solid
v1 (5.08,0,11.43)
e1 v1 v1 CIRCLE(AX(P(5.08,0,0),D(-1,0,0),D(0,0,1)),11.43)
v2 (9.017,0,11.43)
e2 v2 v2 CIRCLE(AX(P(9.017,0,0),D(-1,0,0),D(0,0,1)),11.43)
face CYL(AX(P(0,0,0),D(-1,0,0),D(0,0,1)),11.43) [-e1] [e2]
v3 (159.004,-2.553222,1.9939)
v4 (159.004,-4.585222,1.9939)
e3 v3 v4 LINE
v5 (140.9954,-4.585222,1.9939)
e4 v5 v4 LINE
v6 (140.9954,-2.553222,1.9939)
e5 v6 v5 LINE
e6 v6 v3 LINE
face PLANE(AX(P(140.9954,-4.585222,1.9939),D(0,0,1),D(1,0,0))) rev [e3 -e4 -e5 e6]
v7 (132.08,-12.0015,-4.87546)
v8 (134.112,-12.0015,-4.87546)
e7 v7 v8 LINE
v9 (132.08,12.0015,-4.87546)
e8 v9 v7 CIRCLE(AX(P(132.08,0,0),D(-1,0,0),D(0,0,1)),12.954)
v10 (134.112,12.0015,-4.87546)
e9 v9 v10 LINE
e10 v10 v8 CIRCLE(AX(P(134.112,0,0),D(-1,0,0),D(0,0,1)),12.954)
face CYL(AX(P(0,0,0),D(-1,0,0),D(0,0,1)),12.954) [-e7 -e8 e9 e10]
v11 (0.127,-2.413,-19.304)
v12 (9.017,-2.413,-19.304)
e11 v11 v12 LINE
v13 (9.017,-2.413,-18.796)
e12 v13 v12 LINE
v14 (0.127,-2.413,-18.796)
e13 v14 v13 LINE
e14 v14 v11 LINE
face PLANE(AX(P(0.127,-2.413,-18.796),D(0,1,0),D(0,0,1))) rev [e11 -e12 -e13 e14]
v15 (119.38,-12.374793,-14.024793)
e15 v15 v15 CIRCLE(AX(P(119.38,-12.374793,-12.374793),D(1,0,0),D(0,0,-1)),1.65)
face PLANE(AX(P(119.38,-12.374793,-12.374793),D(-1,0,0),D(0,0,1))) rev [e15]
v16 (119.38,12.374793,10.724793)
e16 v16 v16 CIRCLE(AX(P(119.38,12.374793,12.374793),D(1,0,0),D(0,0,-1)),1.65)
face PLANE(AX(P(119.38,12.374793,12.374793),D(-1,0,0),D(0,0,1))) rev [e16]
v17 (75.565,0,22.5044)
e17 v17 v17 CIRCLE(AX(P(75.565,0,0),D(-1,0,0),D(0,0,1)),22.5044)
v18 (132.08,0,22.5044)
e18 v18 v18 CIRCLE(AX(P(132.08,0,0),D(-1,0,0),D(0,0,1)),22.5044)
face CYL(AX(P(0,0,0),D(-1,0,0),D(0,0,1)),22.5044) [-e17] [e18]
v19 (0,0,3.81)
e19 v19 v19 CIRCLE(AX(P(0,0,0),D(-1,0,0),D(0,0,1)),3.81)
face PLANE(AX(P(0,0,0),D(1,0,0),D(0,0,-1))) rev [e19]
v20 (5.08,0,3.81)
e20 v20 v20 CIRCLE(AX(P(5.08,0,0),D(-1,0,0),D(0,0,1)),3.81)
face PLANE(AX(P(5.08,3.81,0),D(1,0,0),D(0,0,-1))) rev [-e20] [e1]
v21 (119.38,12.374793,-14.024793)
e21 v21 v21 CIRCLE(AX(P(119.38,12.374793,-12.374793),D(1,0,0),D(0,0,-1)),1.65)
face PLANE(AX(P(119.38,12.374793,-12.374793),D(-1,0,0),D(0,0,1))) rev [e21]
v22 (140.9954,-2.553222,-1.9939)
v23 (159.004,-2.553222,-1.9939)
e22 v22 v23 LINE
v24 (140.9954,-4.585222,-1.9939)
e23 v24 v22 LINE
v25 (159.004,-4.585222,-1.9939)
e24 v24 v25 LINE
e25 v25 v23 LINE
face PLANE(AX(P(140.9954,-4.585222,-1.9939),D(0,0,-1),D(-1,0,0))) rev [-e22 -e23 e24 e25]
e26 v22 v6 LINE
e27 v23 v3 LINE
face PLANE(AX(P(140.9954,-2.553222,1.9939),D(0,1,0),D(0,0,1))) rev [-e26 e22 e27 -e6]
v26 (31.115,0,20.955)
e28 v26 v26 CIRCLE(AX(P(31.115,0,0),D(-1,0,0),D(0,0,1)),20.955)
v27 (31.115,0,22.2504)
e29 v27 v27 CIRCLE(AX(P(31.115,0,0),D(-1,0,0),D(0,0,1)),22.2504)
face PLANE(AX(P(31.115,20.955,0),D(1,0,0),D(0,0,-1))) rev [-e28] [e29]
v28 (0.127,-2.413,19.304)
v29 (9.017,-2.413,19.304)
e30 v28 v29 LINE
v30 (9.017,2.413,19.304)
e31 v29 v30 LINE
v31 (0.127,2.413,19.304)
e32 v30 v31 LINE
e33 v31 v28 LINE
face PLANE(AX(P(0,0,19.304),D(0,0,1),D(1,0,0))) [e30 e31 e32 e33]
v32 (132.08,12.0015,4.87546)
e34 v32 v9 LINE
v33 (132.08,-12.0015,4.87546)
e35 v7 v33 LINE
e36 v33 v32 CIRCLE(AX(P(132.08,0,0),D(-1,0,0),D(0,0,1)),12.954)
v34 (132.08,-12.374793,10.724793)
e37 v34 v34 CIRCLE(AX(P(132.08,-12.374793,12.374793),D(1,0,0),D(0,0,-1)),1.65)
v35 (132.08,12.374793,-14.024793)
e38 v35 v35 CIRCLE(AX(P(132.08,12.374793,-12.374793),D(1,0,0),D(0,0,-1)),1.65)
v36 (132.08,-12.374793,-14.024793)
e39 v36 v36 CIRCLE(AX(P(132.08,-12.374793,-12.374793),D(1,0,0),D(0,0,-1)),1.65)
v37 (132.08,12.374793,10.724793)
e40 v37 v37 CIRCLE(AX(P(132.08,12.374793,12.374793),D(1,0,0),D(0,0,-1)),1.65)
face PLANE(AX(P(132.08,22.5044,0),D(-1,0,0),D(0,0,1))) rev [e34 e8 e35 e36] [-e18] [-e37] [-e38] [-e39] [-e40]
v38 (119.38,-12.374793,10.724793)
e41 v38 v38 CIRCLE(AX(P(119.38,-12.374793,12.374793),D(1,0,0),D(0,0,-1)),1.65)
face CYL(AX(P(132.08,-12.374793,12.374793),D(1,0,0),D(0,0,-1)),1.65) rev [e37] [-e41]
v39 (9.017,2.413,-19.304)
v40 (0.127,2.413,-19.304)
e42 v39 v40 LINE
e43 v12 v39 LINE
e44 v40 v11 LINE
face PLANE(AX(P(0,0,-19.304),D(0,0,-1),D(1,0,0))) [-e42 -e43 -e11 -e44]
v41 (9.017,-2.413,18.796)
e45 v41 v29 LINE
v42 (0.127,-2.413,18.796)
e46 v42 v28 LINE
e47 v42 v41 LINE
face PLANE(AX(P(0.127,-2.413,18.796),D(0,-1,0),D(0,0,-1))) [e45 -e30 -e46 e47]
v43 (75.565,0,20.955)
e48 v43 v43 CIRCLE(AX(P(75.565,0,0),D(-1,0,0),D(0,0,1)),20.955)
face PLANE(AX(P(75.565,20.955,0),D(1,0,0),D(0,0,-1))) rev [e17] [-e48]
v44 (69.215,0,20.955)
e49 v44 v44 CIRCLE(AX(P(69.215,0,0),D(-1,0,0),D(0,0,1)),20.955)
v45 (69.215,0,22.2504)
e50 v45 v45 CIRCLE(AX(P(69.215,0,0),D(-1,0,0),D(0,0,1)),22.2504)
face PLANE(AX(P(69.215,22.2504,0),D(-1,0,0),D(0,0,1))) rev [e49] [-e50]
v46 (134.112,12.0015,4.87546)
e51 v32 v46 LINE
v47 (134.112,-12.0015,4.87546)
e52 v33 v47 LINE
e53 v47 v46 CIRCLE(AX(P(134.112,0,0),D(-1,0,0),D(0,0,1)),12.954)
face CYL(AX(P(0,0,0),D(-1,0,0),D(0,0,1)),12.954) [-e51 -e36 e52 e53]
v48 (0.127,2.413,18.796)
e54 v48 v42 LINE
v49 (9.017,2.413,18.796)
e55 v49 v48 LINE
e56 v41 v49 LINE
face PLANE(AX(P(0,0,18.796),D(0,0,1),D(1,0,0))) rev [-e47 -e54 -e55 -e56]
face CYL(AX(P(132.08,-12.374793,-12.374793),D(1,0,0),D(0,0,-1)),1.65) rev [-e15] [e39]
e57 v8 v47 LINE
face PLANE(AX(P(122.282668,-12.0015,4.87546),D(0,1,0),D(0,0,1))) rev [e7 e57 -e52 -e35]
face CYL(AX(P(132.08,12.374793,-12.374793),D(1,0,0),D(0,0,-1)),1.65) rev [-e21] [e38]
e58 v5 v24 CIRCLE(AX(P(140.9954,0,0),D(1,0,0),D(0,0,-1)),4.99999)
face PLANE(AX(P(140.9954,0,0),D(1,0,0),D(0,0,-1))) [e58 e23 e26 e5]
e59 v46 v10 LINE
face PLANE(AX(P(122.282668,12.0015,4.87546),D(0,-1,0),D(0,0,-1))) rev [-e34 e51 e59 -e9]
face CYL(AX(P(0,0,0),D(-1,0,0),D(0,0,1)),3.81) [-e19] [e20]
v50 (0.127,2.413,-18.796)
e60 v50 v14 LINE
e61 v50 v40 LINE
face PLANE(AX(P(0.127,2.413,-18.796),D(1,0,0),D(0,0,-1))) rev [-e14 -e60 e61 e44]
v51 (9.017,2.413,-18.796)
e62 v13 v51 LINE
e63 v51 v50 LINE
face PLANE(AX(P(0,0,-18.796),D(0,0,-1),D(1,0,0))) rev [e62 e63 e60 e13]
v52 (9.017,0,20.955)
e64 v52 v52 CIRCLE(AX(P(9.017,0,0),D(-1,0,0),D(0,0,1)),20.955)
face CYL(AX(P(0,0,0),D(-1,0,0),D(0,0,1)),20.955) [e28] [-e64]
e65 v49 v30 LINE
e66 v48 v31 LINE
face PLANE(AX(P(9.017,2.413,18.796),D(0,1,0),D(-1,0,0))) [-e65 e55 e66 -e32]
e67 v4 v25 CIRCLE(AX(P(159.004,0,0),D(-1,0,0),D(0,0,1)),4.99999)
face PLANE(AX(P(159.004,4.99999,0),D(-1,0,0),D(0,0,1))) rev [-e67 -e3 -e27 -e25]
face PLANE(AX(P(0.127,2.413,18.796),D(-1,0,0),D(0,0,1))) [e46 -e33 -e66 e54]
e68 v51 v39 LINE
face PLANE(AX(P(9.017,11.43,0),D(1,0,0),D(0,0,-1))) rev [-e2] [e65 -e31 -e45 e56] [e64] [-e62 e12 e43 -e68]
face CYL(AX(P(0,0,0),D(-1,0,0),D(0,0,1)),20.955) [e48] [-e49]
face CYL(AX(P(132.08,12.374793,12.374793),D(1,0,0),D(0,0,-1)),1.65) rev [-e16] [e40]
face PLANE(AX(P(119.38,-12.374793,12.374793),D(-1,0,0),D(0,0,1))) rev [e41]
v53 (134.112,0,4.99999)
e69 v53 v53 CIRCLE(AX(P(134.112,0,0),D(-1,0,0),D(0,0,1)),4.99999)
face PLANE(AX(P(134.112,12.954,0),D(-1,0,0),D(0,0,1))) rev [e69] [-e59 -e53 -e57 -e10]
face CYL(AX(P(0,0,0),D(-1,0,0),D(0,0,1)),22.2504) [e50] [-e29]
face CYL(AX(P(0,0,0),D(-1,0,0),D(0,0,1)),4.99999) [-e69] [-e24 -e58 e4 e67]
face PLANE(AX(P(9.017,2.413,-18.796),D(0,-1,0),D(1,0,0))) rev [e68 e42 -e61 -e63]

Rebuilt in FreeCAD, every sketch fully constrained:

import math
import FreeCAD as App
import Part
import Sketcher

V = App.Vector
Q = App.Units.Quantity

doc = App.newDocument("Part")
body = doc.addObject("PartDesign::Body", "Body")

# Sketch on XY plane
sketch1 = body.newObject("Sketcher::SketchObject", "Sketch")
sketch1.AttachmentSupport = (doc.getObject("XY_Plane"), [""])
sketch1.MapMode = "FlatFace"
sketch1.addGeometry(Part.LineSegment(V(0, 3.8, 0), V(0, 0, 0)), False)
sketch1.addGeometry(Part.LineSegment(V(0, 0, 0), V(159, 0, 0)), False)
sketch1.addGeometry(Part.LineSegment(V(159, 0, 0), V(159, 5, 0)), False)
sketch1.addGeometry(Part.LineSegment(V(159, 5, 0), V(134.1, 5, 0)), False)
sketch1.addGeometry(Part.LineSegment(V(134.1, 5, 0), V(134.1, 13, 0)), False)
sketch1.addGeometry(Part.LineSegment(V(134.1, 13, 0), V(132.1, 13, 0)), False)
sketch1.addGeometry(Part.LineSegment(V(132.1, 13, 0), V(132.1, 22.5, 0)), False)
sketch1.addGeometry(Part.LineSegment(V(132.1, 22.5, 0), V(75.6, 22.5, 0)), False)
sketch1.addGeometry(Part.LineSegment(V(75.6, 22.5, 0), V(75.6, 21, 0)), False)
sketch1.addGeometry(Part.LineSegment(V(75.6, 21, 0), V(69.2, 21, 0)), False)
sketch1.addGeometry(Part.LineSegment(V(69.2, 21, 0), V(69.2, 22.3, 0)), False)
sketch1.addGeometry(Part.LineSegment(V(69.2, 22.3, 0), V(31.1, 22.3, 0)), False)
sketch1.addGeometry(Part.LineSegment(V(31.1, 22.3, 0), V(31.1, 21, 0)), False)
sketch1.addGeometry(Part.LineSegment(V(31.1, 21, 0), V(9, 21, 0)), False)
sketch1.addGeometry(Part.LineSegment(V(9, 21, 0), V(9, 11.4, 0)), False)
sketch1.addGeometry(Part.LineSegment(V(9, 11.4, 0), V(5.1, 11.4, 0)), False)
sketch1.addGeometry(Part.LineSegment(V(5.1, 11.4, 0), V(5.1, 3.8, 0)), False)
sketch1.addGeometry(Part.LineSegment(V(5.1, 3.8, 0), V(0, 3.8, 0)), False)
sketch1.addConstraint(Sketcher.Constraint("Coincident", 0, 2, 1, 1))
sketch1.addConstraint(Sketcher.Constraint("Coincident", 1, 2, 2, 1))
sketch1.addConstraint(Sketcher.Constraint("Coincident", 2, 2, 3, 1))
sketch1.addConstraint(Sketcher.Constraint("Coincident", 3, 2, 4, 1))
sketch1.addConstraint(Sketcher.Constraint("Coincident", 4, 2, 5, 1))
sketch1.addConstraint(Sketcher.Constraint("Coincident", 5, 2, 6, 1))
sketch1.addConstraint(Sketcher.Constraint("Coincident", 6, 2, 7, 1))
sketch1.addConstraint(Sketcher.Constraint("Coincident", 7, 2, 8, 1))
sketch1.addConstraint(Sketcher.Constraint("Coincident", 8, 2, 9, 1))
sketch1.addConstraint(Sketcher.Constraint("Coincident", 9, 2, 10, 1))
sketch1.addConstraint(Sketcher.Constraint("Coincident", 10, 2, 11, 1))
sketch1.addConstraint(Sketcher.Constraint("Coincident", 11, 2, 12, 1))
sketch1.addConstraint(Sketcher.Constraint("Coincident", 12, 2, 13, 1))
sketch1.addConstraint(Sketcher.Constraint("Coincident", 13, 2, 14, 1))
sketch1.addConstraint(Sketcher.Constraint("Coincident", 14, 2, 15, 1))
sketch1.addConstraint(Sketcher.Constraint("Coincident", 15, 2, 16, 1))
sketch1.addConstraint(Sketcher.Constraint("Coincident", 16, 2, 17, 1))
sketch1.addConstraint(Sketcher.Constraint("Coincident", 17, 2, 0, 1))
sketch1.addConstraint(Sketcher.Constraint("Vertical", 0))
sketch1.addConstraint(Sketcher.Constraint("Horizontal", 1))
sketch1.addConstraint(Sketcher.Constraint("Vertical", 2))
sketch1.addConstraint(Sketcher.Constraint("Horizontal", 3))
sketch1.addConstraint(Sketcher.Constraint("Vertical", 4))
sketch1.addConstraint(Sketcher.Constraint("Horizontal", 5))
sketch1.addConstraint(Sketcher.Constraint("Vertical", 6))
sketch1.addConstraint(Sketcher.Constraint("Horizontal", 7))
sketch1.addConstraint(Sketcher.Constraint("Vertical", 8))
sketch1.addConstraint(Sketcher.Constraint("Horizontal", 9))
sketch1.addConstraint(Sketcher.Constraint("Vertical", 10))
sketch1.addConstraint(Sketcher.Constraint("Horizontal", 11))
sketch1.addConstraint(Sketcher.Constraint("Vertical", 12))
sketch1.addConstraint(Sketcher.Constraint("Horizontal", 13))
sketch1.addConstraint(Sketcher.Constraint("Vertical", 14))
sketch1.addConstraint(Sketcher.Constraint("Horizontal", 15))
sketch1.addConstraint(Sketcher.Constraint("Vertical", 16))
sketch1.addConstraint(Sketcher.Constraint("Horizontal", 17))
sketch1.addConstraint(Sketcher.Constraint("Coincident", 0, 2, -1, 1))
sketch1.addConstraint(Sketcher.Constraint("Horizontal", 9, 2, 12, 2))
sketch1.addConstraint(Sketcher.Constraint("DistanceX", 11, 2, 11, 1, Q("1.5 in")))
sketch1.addConstraint(Sketcher.Constraint("DistanceX", 17, 2, 17, 1, Q("0.2 in")))
sketch1.addConstraint(Sketcher.Constraint("DistanceY", 16, 2, 16, 1, Q("0.3 in")))
sketch1.addConstraint(Sketcher.Constraint("DistanceX", 1, 1, 1, 2, Q("6.26 in")))
sketch1.addConstraint(Sketcher.Constraint("DistanceX", 3, 2, 3, 1, Q("0.98 in")))
sketch1.addConstraint(Sketcher.Constraint("DistanceX", 5, 2, 5, 1, Q("0.08 in")))
sketch1.addConstraint(Sketcher.Constraint("DistanceX", 9, 2, 9, 1, Q("0.25 in")))
sketch1.addConstraint(Sketcher.Constraint("DistanceX", 13, 2, 13, 1, Q("0.87 in")))
sketch1.addConstraint(Sketcher.Constraint("DistanceY", 0, 2, 0, 1, Q("0.15 in")))
sketch1.addConstraint(Sketcher.Constraint("DistanceX", 7, 2, 7, 1, Q("2.225 in")))
sketch1.addConstraint(Sketcher.Constraint("DistanceY", 6, 1, 6, 2, Q("0.376 in")))
sketch1.addConstraint(Sketcher.Constraint("DistanceY", 8, 2, 8, 1, Q("0.061 in")))
sketch1.addConstraint(Sketcher.Constraint("DistanceY", 10, 1, 10, 2, Q("0.051 in")))
sketch1.addConstraint(Sketcher.Constraint("DistanceY", 14, 2, 14, 1, Q("0.375 in")))
sketch1.addConstraint(Sketcher.Constraint("DistanceY", 2, 1, 2, 2, Q("4.99999 mm")))
revolution = body.newObject("PartDesign::Revolution", "Revolution")
revolution.Profile = sketch1
revolution.ReferenceAxis = (sketch1, ["H_Axis"])
revolution.Angle = 360

# Sketch on YZ plane
sketch2 = body.newObject("Sketcher::SketchObject", "Sketch001")
sketch2.AttachmentSupport = (doc.getObject("YZ_Plane"), [""])
sketch2.MapMode = "FlatFace"
sketch2.AttachmentOffset = App.Placement(V(0, 0, 6.26 * 25.4), App.Rotation())
sketch2.addGeometry(Part.LineSegment(V(-2.6, 2, 0), V(-4.6, 2, 0)), False)
sketch2.addGeometry(Part.ArcOfCircle(Part.Circle(V(0, 0, 0), V(0, 0, 1), 5), math.radians(156), math.radians(204)), False)
sketch2.addGeometry(Part.LineSegment(V(-4.6, -2, 0), V(-2.6, -2, 0)), False)
sketch2.addGeometry(Part.LineSegment(V(-2.6, -2, 0), V(-2.6, 2, 0)), False)
sketch2.addConstraint(Sketcher.Constraint("Coincident", 0, 2, 1, 1))
sketch2.addConstraint(Sketcher.Constraint("Coincident", 1, 2, 2, 1))
sketch2.addConstraint(Sketcher.Constraint("Coincident", 2, 2, 3, 1))
sketch2.addConstraint(Sketcher.Constraint("Coincident", 3, 2, 0, 1))
sketch2.addConstraint(Sketcher.Constraint("Horizontal", 0))
sketch2.addConstraint(Sketcher.Constraint("Horizontal", 2))
sketch2.addConstraint(Sketcher.Constraint("Vertical", 3))
sketch2.addConstraint(Sketcher.Constraint("Coincident", 1, 3, -1, 1))
sketch2.addConstraint(Sketcher.Constraint("Vertical", 0, 2, 1, 2))
sketch2.addConstraint(Sketcher.Constraint("DistanceX", 0, 2, 0, 1, Q("0.08 in")))
sketch2.addConstraint(Sketcher.Constraint("DistanceY", 3, 1, 3, 2, Q("0.157 in")))
sketch2.addConstraint(Sketcher.Constraint("Radius", 1, Q("4.99999 mm")))
pocket1 = body.newObject("PartDesign::Pocket", "Pocket")
pocket1.Profile = sketch2
pocket1.Length = Q("0.709 in")

# Sketch on YZ plane
sketch3 = body.newObject("Sketcher::SketchObject", "Sketch002")
sketch3.AttachmentSupport = (doc.getObject("YZ_Plane"), [""])
sketch3.MapMode = "FlatFace"
sketch3.AttachmentOffset = App.Placement(V(0, 0, 5.28 * 25.4), App.Rotation())
sketch3.addGeometry(Part.LineSegment(V(12, 5, 0), V(12, -5, 0)), False)
sketch3.addGeometry(Part.ArcOfCircle(Part.Circle(V(0, 0, 0), V(0, 0, 1), 13), math.radians(-22), math.radians(22)), False)
sketch3.addGeometry(Part.LineSegment(V(-12, -5, 0), V(-12, 5, 0)), False)
sketch3.addGeometry(Part.ArcOfCircle(Part.Circle(V(0, 0, 0), V(0, 0, 1), 13), math.radians(158), math.radians(202)), False)
sketch3.addConstraint(Sketcher.Constraint("Coincident", 0, 1, 1, 2))
sketch3.addConstraint(Sketcher.Constraint("Coincident", 1, 1, 0, 2))
sketch3.addConstraint(Sketcher.Constraint("Coincident", 2, 1, 3, 2))
sketch3.addConstraint(Sketcher.Constraint("Coincident", 3, 1, 2, 2))
sketch3.addConstraint(Sketcher.Constraint("Vertical", 0))
sketch3.addConstraint(Sketcher.Constraint("Vertical", 2))
sketch3.addConstraint(Sketcher.Constraint("Coincident", 1, 3, -1, 1))
sketch3.addConstraint(Sketcher.Constraint("Coincident", 3, 3, -1, 1))
sketch3.addConstraint(Sketcher.Constraint("Equal", 1, 3))
sketch3.addConstraint(Sketcher.Constraint("Horizontal", 1, 1, 2, 1))
sketch3.addConstraint(Sketcher.Constraint("Radius", 1, Q("0.51 in")))
sketch3.addConstraint(Sketcher.Constraint("DistanceX", 2, 1, 1, 1, Q("0.945 in")))
pocket2 = body.newObject("PartDesign::Pocket", "Pocket001")
pocket2.Profile = sketch3
pocket2.Length = Q("0.08 in")

# Sketch on YZ plane
sketch4 = body.newObject("Sketcher::SketchObject", "Sketch003")
sketch4.AttachmentSupport = (doc.getObject("YZ_Plane"), [""])
sketch4.MapMode = "FlatFace"
sketch4.AttachmentOffset = App.Placement(V(0, 0, 5.2 * 25.4), App.Rotation())
sketch4.addGeometry(Part.Circle(V(12.4, 12.4, 0), V(0, 0, 1), 1.6), False)
sketch4.addGeometry(Part.Circle(V(-12.4, -12.4, 0), V(0, 0, 1), 1.6), False)
sketch4.addGeometry(Part.Circle(V(12.4, -12.4, 0), V(0, 0, 1), 1.6), False)
sketch4.addGeometry(Part.Circle(V(-12.4, 12.4, 0), V(0, 0, 1), 1.6), False)
sketch4.addConstraint(Sketcher.Constraint("Equal", 0, 1))
sketch4.addConstraint(Sketcher.Constraint("Equal", 1, 2))
sketch4.addConstraint(Sketcher.Constraint("Equal", 2, 3))
sketch4.addConstraint(Sketcher.Constraint("Symmetric", 0, 3, 1, 3, -1, 1))
sketch4.addConstraint(Sketcher.Constraint("Symmetric", 2, 3, 3, 3, -1, 1))
sketch4.addConstraint(Sketcher.Constraint("Symmetric", 1, 3, 2, 3, -2))
sketch4.addConstraint(Sketcher.Constraint("Diameter", 0, Q("3.3 mm")))
sketch4.addConstraint(Sketcher.Constraint("DistanceX", -1, 1, 0, 3, Q("12.374793 mm")))
sketch4.addConstraint(Sketcher.Constraint("DistanceY", -1, 1, 0, 3, Q("12.374793 mm")))
doc.recompute()
hole = body.newObject("PartDesign::Hole", "Hole")
hole.Profile = sketch4
hole.ThreadType = "None"
hole.Diameter = 3.3
hole.DepthType = "Dimension"
hole.Depth = Q("0.5 in")
hole.DrillPoint = "Flat"

# Sketch on XY plane
sketch5 = body.newObject("Sketcher::SketchObject", "Sketch004")
sketch5.AttachmentSupport = (doc.getObject("XY_Plane"), [""])
sketch5.MapMode = "FlatFace"
sketch5.AttachmentOffset = App.Placement(V(0, 0, 0.75 * 25.4), App.Rotation())
sketch5.addGeometry(Part.LineSegment(V(0.1, 2.4, 0), V(0.1, -2.4, 0)), False)
sketch5.addGeometry(Part.LineSegment(V(0.1, -2.4, 0), V(9, -2.4, 0)), False)
sketch5.addGeometry(Part.LineSegment(V(9, -2.4, 0), V(9, 2.4, 0)), False)
sketch5.addGeometry(Part.LineSegment(V(9, 2.4, 0), V(0.1, 2.4, 0)), False)
sketch5.addConstraint(Sketcher.Constraint("Coincident", 0, 2, 1, 1))
sketch5.addConstraint(Sketcher.Constraint("Coincident", 1, 2, 2, 1))
sketch5.addConstraint(Sketcher.Constraint("Coincident", 2, 2, 3, 1))
sketch5.addConstraint(Sketcher.Constraint("Coincident", 3, 2, 0, 1))
sketch5.addConstraint(Sketcher.Constraint("Vertical", 0))
sketch5.addConstraint(Sketcher.Constraint("Horizontal", 1))
sketch5.addConstraint(Sketcher.Constraint("Vertical", 2))
sketch5.addConstraint(Sketcher.Constraint("Horizontal", 3))
sketch5.addConstraint(Sketcher.Constraint("DistanceX", 1, 1, 1, 2, Q("0.35 in")))
sketch5.addConstraint(Sketcher.Constraint("DistanceY", 0, 2, 0, 1, Q("0.19 in")))
sketch5.addConstraint(Sketcher.Constraint("DistanceX", -1, 1, 0, 2, Q("0.005 in")))
sketch5.addConstraint(Sketcher.Constraint("DistanceY", 0, 2, -1, 1, Q("0.095 in")))
pad1 = body.newObject("PartDesign::Pad", "Pad")
pad1.Profile = sketch5
pad1.Length = Q("0.02 in")
pad1.Midplane = True
doc.recompute()

mirrored = body.newObject("PartDesign::Mirrored", "Mirrored")
mirrored.Originals = [pad1]
mirrored.MirrorPlane = (doc.getObject("XY_Plane"), [""])
body.Tip = mirrored

doc.recompute()
